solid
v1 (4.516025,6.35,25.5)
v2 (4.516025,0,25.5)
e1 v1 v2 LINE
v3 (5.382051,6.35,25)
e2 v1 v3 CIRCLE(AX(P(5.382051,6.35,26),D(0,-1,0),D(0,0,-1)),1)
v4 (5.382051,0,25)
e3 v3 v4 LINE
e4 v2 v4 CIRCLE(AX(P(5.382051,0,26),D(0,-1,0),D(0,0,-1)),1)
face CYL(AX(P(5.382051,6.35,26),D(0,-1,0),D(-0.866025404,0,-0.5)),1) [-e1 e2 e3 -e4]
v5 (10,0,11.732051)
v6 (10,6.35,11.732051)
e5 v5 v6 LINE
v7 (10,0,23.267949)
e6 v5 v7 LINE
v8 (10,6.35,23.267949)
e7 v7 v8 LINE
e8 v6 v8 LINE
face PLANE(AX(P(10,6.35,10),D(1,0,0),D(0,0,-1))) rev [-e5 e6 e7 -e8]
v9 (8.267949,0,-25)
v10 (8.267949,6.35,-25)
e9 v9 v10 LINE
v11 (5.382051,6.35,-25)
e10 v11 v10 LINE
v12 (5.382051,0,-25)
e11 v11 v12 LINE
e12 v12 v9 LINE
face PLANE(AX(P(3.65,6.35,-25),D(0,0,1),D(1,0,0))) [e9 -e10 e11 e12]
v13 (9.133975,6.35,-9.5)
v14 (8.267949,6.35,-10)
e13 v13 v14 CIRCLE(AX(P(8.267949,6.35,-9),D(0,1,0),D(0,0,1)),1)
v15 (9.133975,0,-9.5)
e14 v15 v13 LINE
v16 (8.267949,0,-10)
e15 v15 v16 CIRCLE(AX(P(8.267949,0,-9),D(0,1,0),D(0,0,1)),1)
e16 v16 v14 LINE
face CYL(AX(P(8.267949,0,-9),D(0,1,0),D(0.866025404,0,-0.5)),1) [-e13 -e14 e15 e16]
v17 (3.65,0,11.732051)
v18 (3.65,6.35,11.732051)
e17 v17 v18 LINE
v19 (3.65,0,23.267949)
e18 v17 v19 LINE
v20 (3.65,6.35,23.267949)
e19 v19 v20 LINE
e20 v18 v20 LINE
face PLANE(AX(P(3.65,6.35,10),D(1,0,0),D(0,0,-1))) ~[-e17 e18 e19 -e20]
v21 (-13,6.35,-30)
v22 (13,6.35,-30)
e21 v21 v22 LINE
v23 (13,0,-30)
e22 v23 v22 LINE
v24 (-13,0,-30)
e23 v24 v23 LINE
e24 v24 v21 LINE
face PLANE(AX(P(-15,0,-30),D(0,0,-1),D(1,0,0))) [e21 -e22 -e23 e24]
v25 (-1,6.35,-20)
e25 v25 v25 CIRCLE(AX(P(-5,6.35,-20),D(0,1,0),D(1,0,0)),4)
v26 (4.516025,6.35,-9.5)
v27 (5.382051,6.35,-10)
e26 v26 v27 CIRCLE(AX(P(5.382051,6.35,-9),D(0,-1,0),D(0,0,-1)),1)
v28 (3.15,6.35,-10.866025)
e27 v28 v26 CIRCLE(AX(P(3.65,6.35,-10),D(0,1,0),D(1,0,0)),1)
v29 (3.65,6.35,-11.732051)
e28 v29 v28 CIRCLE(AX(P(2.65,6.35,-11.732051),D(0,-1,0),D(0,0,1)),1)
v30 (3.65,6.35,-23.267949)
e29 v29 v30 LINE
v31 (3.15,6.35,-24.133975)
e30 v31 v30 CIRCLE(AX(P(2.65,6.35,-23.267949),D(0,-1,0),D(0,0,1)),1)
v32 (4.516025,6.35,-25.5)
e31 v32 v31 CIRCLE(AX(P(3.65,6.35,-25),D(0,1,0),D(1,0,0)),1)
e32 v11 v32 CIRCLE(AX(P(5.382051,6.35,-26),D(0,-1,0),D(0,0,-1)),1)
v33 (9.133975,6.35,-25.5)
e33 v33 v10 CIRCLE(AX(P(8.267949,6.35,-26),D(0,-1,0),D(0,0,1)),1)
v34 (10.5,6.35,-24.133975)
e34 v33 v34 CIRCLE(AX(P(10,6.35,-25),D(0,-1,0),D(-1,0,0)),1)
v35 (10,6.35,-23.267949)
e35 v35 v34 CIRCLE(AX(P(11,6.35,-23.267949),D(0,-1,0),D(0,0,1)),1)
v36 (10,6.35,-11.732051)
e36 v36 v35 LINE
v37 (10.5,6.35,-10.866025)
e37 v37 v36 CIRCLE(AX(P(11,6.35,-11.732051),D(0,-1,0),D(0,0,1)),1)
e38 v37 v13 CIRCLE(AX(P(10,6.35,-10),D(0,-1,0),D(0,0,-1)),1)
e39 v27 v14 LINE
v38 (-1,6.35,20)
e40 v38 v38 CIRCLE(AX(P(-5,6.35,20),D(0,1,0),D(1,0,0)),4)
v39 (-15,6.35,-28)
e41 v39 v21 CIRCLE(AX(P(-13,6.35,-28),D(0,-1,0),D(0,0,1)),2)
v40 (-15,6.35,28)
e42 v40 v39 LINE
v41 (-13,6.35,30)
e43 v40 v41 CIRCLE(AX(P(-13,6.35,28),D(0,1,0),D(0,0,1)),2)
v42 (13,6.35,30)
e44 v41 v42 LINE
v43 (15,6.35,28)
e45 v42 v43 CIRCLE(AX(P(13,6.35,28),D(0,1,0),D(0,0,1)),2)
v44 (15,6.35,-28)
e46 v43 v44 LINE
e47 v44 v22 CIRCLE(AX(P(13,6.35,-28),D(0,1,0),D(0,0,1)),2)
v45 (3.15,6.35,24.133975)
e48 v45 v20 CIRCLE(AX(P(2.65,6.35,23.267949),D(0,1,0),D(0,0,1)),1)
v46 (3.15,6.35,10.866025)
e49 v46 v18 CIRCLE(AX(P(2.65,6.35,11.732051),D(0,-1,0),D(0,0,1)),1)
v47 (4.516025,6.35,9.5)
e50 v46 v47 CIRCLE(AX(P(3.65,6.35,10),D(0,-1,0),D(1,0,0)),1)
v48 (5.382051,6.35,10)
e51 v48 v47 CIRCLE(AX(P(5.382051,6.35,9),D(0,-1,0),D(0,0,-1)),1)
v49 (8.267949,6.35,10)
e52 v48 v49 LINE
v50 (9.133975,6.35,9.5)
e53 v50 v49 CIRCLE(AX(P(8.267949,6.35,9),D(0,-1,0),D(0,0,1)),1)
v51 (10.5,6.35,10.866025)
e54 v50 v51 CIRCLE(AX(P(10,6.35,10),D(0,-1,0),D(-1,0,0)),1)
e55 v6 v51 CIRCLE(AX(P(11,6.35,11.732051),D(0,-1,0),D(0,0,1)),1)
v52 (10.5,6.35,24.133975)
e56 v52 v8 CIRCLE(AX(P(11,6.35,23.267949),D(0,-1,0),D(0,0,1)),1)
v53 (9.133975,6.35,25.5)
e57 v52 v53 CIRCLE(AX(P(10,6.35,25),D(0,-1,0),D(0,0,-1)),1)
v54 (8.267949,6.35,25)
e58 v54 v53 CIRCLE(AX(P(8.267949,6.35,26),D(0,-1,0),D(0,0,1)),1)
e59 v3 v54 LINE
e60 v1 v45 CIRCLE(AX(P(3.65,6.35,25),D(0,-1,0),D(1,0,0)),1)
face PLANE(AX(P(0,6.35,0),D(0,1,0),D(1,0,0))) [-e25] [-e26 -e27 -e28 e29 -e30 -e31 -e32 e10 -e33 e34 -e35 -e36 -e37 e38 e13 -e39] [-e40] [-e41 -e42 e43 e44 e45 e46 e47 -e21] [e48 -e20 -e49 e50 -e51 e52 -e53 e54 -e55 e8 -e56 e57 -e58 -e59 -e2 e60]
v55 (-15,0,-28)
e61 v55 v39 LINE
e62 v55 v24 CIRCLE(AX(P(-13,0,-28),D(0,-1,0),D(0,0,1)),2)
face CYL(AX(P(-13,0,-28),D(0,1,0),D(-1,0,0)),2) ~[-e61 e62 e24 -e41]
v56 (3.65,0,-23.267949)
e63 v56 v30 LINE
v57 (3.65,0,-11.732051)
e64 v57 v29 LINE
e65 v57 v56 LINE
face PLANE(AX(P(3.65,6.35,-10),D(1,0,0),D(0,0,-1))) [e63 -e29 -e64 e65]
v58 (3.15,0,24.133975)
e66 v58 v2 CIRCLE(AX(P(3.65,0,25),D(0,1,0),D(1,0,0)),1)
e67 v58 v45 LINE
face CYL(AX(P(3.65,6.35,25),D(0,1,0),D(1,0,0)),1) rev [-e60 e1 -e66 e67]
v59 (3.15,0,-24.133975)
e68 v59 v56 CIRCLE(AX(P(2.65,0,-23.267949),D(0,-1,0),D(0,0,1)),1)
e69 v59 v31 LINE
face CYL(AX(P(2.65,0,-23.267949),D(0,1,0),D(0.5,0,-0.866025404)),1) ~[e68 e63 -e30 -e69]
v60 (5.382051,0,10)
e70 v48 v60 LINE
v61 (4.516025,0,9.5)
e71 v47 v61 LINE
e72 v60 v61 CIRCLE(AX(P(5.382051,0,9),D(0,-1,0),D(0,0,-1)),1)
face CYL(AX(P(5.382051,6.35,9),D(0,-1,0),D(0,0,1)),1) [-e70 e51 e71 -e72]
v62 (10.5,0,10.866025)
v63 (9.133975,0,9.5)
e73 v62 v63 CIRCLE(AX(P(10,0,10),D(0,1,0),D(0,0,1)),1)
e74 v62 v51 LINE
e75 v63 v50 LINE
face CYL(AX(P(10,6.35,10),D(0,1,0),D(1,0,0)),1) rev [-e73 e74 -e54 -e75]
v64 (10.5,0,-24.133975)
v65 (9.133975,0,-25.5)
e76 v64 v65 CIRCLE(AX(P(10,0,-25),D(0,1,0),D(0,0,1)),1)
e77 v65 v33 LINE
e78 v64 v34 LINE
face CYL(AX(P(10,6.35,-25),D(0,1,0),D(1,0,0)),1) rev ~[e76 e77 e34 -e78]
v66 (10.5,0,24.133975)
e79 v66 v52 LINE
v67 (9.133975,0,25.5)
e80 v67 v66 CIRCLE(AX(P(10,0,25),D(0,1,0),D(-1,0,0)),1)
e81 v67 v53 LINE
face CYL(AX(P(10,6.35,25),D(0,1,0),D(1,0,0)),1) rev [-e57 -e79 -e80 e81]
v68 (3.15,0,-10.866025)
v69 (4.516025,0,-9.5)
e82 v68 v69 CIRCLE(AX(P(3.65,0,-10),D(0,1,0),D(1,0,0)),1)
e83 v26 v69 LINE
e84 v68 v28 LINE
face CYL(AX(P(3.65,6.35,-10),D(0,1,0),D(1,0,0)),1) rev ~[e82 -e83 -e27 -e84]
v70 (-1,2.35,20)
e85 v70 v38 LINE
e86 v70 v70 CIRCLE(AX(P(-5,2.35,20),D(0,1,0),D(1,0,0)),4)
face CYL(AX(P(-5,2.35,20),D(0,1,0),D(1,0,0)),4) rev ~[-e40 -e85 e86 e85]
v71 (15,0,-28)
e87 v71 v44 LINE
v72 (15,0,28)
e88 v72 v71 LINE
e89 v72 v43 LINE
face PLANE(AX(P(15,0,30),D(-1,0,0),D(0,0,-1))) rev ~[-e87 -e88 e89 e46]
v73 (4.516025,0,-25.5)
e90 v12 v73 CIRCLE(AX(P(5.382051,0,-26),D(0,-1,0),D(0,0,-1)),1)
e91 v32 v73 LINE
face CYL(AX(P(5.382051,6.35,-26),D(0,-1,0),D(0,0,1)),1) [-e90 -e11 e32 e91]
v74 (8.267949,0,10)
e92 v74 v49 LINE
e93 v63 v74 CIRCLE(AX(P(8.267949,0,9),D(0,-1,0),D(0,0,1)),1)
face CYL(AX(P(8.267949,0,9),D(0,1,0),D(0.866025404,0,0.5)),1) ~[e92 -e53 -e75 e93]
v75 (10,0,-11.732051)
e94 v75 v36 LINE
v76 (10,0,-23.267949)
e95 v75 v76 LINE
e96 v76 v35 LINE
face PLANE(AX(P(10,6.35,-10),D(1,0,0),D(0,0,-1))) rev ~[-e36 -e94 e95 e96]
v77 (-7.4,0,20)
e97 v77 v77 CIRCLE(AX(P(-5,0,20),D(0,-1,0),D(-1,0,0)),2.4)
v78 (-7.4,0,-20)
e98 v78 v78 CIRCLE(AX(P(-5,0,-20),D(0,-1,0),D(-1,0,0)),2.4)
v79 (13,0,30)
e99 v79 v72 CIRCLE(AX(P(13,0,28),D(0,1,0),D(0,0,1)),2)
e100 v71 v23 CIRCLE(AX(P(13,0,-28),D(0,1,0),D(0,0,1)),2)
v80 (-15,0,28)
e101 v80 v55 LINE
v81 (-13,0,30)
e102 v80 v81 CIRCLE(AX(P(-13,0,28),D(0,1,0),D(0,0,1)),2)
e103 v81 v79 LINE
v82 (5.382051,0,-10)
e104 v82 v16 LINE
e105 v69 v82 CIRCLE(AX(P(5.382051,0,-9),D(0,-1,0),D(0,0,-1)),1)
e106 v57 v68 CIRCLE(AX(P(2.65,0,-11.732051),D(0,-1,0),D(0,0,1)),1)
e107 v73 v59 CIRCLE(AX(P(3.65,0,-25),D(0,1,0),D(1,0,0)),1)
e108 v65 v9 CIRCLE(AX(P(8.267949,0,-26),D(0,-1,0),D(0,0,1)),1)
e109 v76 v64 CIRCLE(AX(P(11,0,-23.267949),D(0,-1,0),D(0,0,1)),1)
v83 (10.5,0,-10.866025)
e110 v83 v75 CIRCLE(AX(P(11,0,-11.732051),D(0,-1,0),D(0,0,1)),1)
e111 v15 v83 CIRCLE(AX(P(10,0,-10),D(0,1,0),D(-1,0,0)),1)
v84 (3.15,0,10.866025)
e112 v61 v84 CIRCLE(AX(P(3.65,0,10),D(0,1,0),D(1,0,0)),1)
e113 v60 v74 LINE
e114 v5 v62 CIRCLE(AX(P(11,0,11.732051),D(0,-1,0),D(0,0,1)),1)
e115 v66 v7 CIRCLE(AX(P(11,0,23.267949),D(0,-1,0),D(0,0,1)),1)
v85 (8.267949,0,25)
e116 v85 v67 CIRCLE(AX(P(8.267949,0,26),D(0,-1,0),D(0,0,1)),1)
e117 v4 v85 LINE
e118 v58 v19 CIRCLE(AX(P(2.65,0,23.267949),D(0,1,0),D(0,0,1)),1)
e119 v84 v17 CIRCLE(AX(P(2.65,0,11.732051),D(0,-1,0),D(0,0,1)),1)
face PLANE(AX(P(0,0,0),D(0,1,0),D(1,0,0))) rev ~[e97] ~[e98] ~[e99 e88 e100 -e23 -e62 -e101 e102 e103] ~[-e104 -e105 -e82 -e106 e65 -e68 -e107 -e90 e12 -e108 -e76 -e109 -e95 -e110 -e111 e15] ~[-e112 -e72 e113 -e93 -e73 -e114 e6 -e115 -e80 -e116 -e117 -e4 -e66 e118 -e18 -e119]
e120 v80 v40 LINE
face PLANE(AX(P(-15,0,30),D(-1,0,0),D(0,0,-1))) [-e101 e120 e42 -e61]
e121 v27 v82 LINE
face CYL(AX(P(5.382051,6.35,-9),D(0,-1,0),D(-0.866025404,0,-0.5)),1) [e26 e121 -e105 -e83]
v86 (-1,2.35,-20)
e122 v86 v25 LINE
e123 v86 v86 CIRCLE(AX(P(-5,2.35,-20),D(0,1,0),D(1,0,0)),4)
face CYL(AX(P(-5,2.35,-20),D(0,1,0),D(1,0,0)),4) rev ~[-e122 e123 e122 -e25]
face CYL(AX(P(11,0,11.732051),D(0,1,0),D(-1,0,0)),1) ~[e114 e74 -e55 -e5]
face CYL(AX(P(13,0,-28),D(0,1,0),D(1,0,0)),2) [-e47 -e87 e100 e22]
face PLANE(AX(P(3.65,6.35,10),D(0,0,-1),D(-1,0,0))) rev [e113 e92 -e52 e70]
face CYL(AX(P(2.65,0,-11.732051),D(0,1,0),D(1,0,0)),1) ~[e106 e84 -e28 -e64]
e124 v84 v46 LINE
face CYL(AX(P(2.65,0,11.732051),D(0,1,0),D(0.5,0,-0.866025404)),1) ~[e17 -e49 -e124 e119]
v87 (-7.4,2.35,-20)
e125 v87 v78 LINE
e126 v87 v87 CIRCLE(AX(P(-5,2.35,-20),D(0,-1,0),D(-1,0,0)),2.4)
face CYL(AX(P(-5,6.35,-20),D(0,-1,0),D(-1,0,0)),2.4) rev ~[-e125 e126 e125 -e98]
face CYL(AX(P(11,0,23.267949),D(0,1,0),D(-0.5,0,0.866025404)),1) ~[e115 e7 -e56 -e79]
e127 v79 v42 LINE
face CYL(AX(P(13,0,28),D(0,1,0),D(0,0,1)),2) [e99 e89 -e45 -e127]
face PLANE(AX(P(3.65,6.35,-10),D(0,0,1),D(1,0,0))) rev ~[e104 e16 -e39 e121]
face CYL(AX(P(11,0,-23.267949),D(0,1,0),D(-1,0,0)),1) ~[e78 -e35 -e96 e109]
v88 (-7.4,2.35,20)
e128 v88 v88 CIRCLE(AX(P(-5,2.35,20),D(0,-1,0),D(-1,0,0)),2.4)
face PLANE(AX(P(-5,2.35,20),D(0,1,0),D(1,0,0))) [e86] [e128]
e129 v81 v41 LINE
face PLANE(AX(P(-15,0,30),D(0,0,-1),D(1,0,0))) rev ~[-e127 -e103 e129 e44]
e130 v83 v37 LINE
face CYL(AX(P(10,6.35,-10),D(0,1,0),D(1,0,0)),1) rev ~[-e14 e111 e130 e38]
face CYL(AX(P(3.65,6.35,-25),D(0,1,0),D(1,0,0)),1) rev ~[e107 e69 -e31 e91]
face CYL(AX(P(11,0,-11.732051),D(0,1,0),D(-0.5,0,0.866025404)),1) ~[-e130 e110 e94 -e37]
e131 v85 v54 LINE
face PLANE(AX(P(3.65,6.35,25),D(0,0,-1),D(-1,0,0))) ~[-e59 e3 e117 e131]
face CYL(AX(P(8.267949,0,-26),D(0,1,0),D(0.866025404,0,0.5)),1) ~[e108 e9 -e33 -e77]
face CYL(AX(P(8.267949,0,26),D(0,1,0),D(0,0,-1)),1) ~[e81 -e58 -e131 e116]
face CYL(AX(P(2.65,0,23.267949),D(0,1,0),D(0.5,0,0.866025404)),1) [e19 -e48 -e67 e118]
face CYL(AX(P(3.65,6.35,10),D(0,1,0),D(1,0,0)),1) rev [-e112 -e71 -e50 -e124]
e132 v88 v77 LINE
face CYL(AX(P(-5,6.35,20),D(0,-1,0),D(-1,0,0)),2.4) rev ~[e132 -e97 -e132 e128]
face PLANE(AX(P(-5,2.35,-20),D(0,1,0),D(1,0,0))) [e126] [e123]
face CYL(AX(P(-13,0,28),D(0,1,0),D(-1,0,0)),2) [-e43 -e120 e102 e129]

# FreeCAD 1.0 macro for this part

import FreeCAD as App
import Part
import Sketcher
from FreeCAD import Vector


def edges_at(feature, points):
    """Names of the edges that pass closest to the given points."""
    edges = feature.Shape.Edges
    near = lambda p: min(range(len(edges)), key=lambda i: edges[i].distToShape(Part.Vertex(*p))[0])
    return sorted({f"Edge{near(p) + 1}" for p in points})


def add_polygon(sketch, points):
    """Adds a closed chain of lines whose ends are joined by coincident constraints."""
    first, n = sketch.GeometryCount, len(points)
    for a, b in zip(points, points[1:] + points[:1]):
        sketch.addGeometry(Part.LineSegment(App.Vector(*a, 0), App.Vector(*b, 0)), False)
    for i in range(n):
        sketch.addConstraint(Sketcher.Constraint("Coincident", first + i, 2, first + (i + 1) % n, 1))

doc = App.newDocument("Part")
body = doc.addObject("PartDesign::Body", "Body")

# Sketch on XZ plane
sketch1 = body.newObject("Sketcher::SketchObject", "Sketch")
sketch1.AttachmentSupport = (doc.getObject("XZ_Plane"), [""])
sketch1.MapMode = "FlatFace"
add_polygon(sketch1, [(-15, -30), (-15, 30), (15, 30), (15, -30)])  # lines 0-3
sketch1.addConstraint([
    Sketcher.Constraint("Vertical", 0),
    Sketcher.Constraint("Horizontal", 1),
    Sketcher.Constraint("Vertical", 2),
    Sketcher.Constraint("Horizontal", 3),
    Sketcher.Constraint("Symmetric", 0, 2, 2, 2, -1, 1),
    Sketcher.Constraint("DistanceX", 1, 1, 1, 2, 30.0),
    Sketcher.Constraint("DistanceY", 0, 1, 0, 2, 60.0),
])
pad1 = body.newObject("PartDesign::Pad", "Pad")
pad1.Profile = sketch1
pad1.Length = 6.35
pad1.Reversed = True

# Sketch on XZ plane
sketch2 = body.newObject("Sketcher::SketchObject", "Sketch001")
sketch2.AttachmentSupport = (doc.getObject("XZ_Plane"), [""])
sketch2.MapMode = "FlatFace"
sketch2.AttachmentOffset = App.Placement(Vector(0, 0, -6.35), App.Rotation())
sketch2.addGeometry([
    Part.Circle(Vector(-5, -20, 0), Vector(0, 0, 1), 2.4),
    Part.Circle(Vector(-5, 20, 0), Vector(0, 0, 1), 2.4),
], False)
sketch2.addConstraint([
    Sketcher.Constraint("Equal", 0, 1),
    Sketcher.Constraint("Symmetric", 0, 3, 1, 3, -1),
    Sketcher.Constraint("Diameter", 0, 4.8),
    Sketcher.Constraint("DistanceX", 0, 3, -1, 1, 5.0),
    Sketcher.Constraint("DistanceY", 0, 3, -1, 1, 20.0),
])
doc.recompute()
hole = body.newObject("PartDesign::Hole", "Hole")
hole.Profile = sketch2
hole.ThreadType = "None"
hole.Diameter = 4.8
hole.DepthType = "Dimension"
hole.Depth = 6.35
hole.DrillPoint = "Flat"
hole.HoleCutType = "Counterbore"
hole.HoleCutDiameter = 8
hole.HoleCutDepth = 4
hole.Reversed = True

# Sketch on XZ plane
sketch3 = body.newObject("Sketcher::SketchObject", "Sketch002")
sketch3.AttachmentSupport = (doc.getObject("XZ_Plane"), [""])
sketch3.MapMode = "FlatFace"
sketch3.AttachmentOffset = App.Placement(Vector(0, 0, -6.35), App.Rotation())
add_polygon(sketch3, [(3.65, -25), (3.65, -10), (10, -10), (10, -25)])  # lines 0-3
sketch3.addConstraint([
    Sketcher.Constraint("Vertical", 0),
    Sketcher.Constraint("Horizontal", 1),
    Sketcher.Constraint("Vertical", 2),
    Sketcher.Constraint("Horizontal", 3),
    Sketcher.Constraint("DistanceY", 0, 1, 0, 2, 15.0),
    Sketcher.Constraint("DistanceY", 0, 2, -1, 1, 10.0),
    Sketcher.Constraint("DistanceX", -1, 1, 1, 2, 10.0),
    Sketcher.Constraint("DistanceX", 1, 1, 1, 2, 6.35),
])
pocket1 = body.newObject("PartDesign::Pocket", "Pocket")
pocket1.Profile = sketch3
pocket1.Type = "ThroughAll"
pocket1.Reversed = True

# Sketch on XZ plane
sketch4 = body.newObject("Sketcher::SketchObject", "Sketch003")
sketch4.AttachmentSupport = (doc.getObject("XZ_Plane"), [""])
sketch4.MapMode = "FlatFace"
sketch4.AttachmentOffset = App.Placement(Vector(0, 0, -6.35), App.Rotation())
sketch4.addGeometry([
    Part.Circle(Vector(3.65, -25, 0), Vector(0, 0, 1), 1),
    Part.Circle(Vector(10, -25, 0), Vector(0, 0, 1), 1),
    Part.Circle(Vector(10, -10, 0), Vector(0, 0, 1), 1),
    Part.Circle(Vector(3.65, -10, 0), Vector(0, 0, 1), 1),
], False)
sketch4.addConstraint([
    Sketcher.Constraint("Equal", 0, 1),
    Sketcher.Constraint("Equal", 1, 2),
    Sketcher.Constraint("Equal", 2, 3),
    Sketcher.Constraint("Horizontal", 0, 3, 1, 3),
    Sketcher.Constraint("Horizontal", 2, 3, 3, 3),
    Sketcher.Constraint("Vertical", 1, 3, 2, 3),
    Sketcher.Constraint("Vertical", 0, 3, 3, 3),
    Sketcher.Constraint("Diameter", 0, 2.0),
    Sketcher.Constraint("DistanceY", 0, 3, -1, 1, 25.0),
    Sketcher.Constraint("DistanceX", -1, 1, 1, 3, 10.0),
    Sketcher.Constraint("DistanceY", 2, 3, -1, 1, 10.0),
    Sketcher.Constraint("DistanceX", -1, 1, 0, 3, 3.65),
])
pocket2 = body.newObject("PartDesign::Pocket", "Pocket001")
pocket2.Profile = sketch4
pocket2.Type = "ThroughAll"
pocket2.Reversed = True
doc.recompute()

mirrored = body.newObject("PartDesign::Mirrored", "Mirrored")
mirrored.Originals = [pocket1, pocket2]
mirrored.MirrorPlane = (doc.getObject("XY_Plane"), [""])
body.Tip = mirrored
doc.recompute()

fillet = body.newObject("PartDesign::Fillet", "Fillet")
fillet.Base = (mirrored, edges_at(mirrored, [
    (9, 3.175, 25),
    (10, 3.175, 11),
    (4.65, 3.175, 10),
    (3.65, 3.175, 11),
    (9, 3.175, 10),
    (10, 3.175, 24),
    (3.65, 3.175, 24),
    (9, 3.175, -10),
    (4.65, 3.175, -10),
    (10, 3.175, -24),
    (4.65, 3.175, -25),
    (3.65, 3.175, -11),
    (10, 3.175, -11),
    (9, 3.175, -25),
    (3.65, 3.175, -24),
    (4.65, 3.175, 25),
]))
fillet.Radius = 1
doc.recompute()

fillet2 = body.newObject("PartDesign::Fillet", "Fillet001")
fillet2.Base = (fillet, edges_at(fillet, [
    (-15, 3.175, -30),
    (15, 3.175, -30),
    (15, 3.175, 30),
    (-15, 3.175, 30),
]))
fillet2.Radius = 2

doc.recompute()
